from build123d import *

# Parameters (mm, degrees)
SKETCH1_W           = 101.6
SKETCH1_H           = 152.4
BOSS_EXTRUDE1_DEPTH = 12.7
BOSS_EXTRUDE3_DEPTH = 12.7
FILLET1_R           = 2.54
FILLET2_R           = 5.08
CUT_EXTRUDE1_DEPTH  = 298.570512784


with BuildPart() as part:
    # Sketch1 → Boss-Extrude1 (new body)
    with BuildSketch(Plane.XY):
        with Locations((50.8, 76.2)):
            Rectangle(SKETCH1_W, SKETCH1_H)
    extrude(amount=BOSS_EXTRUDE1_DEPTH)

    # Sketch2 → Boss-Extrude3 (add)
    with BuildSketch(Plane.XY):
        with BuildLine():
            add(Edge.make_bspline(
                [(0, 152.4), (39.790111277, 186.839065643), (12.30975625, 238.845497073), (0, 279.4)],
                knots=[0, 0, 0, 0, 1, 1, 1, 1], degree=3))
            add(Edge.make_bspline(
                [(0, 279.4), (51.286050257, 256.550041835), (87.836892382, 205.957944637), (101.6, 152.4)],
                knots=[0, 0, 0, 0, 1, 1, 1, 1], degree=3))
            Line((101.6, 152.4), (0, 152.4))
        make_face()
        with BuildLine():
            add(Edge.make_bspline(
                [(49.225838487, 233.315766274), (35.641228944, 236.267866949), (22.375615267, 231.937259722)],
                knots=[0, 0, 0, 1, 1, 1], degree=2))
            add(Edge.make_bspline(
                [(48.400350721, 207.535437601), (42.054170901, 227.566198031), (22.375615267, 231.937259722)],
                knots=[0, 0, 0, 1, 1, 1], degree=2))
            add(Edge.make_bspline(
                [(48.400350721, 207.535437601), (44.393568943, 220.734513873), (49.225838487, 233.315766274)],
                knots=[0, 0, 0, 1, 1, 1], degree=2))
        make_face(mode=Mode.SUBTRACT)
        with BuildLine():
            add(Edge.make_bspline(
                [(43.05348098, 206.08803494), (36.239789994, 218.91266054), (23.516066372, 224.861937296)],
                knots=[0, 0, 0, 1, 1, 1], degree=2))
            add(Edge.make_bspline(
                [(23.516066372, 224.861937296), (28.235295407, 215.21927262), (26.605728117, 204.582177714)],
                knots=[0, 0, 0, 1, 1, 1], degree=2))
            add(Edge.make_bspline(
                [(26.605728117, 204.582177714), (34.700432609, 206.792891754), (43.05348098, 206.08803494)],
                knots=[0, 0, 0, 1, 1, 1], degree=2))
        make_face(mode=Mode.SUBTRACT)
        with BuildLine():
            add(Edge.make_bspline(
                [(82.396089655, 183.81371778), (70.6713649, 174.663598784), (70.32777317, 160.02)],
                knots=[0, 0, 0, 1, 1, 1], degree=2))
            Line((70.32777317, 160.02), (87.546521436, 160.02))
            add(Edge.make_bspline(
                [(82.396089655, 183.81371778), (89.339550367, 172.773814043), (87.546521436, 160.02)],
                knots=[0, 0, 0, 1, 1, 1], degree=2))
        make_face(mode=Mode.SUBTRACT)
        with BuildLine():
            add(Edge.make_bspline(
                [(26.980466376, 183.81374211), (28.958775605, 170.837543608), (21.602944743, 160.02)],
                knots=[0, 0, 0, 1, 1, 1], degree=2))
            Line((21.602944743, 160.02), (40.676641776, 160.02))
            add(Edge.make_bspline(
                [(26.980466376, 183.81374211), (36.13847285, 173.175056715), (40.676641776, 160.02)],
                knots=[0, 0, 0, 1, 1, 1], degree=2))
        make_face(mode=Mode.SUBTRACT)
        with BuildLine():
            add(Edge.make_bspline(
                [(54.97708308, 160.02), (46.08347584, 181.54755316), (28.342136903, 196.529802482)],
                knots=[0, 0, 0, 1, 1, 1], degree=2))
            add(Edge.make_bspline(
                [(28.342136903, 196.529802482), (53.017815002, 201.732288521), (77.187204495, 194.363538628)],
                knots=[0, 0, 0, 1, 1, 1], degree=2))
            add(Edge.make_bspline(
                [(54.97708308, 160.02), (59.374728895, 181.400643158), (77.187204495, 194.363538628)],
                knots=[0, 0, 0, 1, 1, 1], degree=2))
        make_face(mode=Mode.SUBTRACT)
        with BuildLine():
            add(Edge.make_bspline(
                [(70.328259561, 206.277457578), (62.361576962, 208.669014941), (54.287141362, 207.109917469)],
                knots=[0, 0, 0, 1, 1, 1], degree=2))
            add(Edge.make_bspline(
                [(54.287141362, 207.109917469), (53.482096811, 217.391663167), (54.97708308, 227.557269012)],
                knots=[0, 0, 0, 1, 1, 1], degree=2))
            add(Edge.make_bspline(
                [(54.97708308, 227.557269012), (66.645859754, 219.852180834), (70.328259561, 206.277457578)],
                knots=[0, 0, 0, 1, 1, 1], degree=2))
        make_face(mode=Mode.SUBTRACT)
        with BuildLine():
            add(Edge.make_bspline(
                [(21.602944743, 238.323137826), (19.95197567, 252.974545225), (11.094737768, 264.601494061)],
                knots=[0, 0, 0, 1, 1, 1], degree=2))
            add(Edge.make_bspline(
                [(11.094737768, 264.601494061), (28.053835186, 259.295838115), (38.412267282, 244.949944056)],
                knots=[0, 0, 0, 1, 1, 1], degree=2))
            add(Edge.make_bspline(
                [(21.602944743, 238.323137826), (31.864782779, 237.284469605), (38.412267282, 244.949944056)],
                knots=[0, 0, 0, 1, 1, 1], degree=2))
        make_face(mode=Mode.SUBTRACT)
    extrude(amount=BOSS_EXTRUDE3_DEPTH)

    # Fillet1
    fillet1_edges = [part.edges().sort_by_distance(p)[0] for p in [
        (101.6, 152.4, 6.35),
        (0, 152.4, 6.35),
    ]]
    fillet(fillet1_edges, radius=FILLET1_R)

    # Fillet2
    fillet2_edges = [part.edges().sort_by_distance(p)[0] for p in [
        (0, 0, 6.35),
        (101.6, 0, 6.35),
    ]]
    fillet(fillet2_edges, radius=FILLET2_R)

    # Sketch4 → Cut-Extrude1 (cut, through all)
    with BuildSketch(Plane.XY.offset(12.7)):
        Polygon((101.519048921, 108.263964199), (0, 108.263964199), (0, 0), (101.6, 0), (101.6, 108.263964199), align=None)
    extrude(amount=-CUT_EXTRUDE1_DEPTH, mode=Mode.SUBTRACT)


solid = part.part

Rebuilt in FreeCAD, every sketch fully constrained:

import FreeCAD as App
import Part
import Sketcher
from FreeCAD import Vector
Q = App.Units.Quantity


def edges_at(feature, points):
    """Names of the edges that pass closest to the given points."""
    edges = feature.Shape.Edges
    near = lambda p: min(range(len(edges)), key=lambda i: edges[i].distToShape(Part.Vertex(*p))[0])
    return sorted({f"Edge{near(p) + 1}" for p in points})

doc = App.newDocument("Part")
body = doc.addObject("PartDesign::Body", "Body")

# Sketch on XY plane
sketch1 = body.newObject("Sketcher::SketchObject", "Sketch")
sketch1.AttachmentSupport = (doc.getObject("XY_Plane"), [""])
sketch1.MapMode = "FlatFace"
sketch1.addGeometry(Part.LineSegment(Vector(0, 152.4, 0), Vector(0, 0, 0)), False)
sketch1.addGeometry(Part.LineSegment(Vector(0, 0, 0), Vector(101.6, 0, 0)), False)
sketch1.addGeometry(Part.LineSegment(Vector(101.6, 0, 0), Vector(101.6, 152.4, 0)), False)
sketch1.addGeometry(Part.LineSegment(Vector(101.6, 152.4, 0), Vector(0, 152.4, 0)), False)
sketch1.addConstraint(Sketcher.Constraint("Coincident", 0, 2, 1, 1))
sketch1.addConstraint(Sketcher.Constraint("Coincident", 1, 2, 2, 1))
sketch1.addConstraint(Sketcher.Constraint("Coincident", 2, 2, 3, 1))
sketch1.addConstraint(Sketcher.Constraint("Coincident", 3, 2, 0, 1))
sketch1.addConstraint(Sketcher.Constraint("Vertical", 0))
sketch1.addConstraint(Sketcher.Constraint("Horizontal", 1))
sketch1.addConstraint(Sketcher.Constraint("Vertical", 2))
sketch1.addConstraint(Sketcher.Constraint("Horizontal", 3))
sketch1.addConstraint(Sketcher.Constraint("Coincident", 0, 2, -1, 1))
sketch1.addConstraint(Sketcher.Constraint("DistanceX", 1, 1, 1, 2, Q("4 in")))
sketch1.addConstraint(Sketcher.Constraint("DistanceY", 0, 2, 0, 1, Q("6 in")))
pad1 = body.newObject("PartDesign::Pad", "Pad")
pad1.Profile = sketch1
pad1.Length = Q("0.5 in")

# Sketch on XY plane
sketch2 = body.newObject("Sketcher::SketchObject", "Sketch001")
sketch2.AttachmentSupport = (doc.getObject("XY_Plane"), [""])
sketch2.MapMode = "FlatFace"
sketch2.addGeometry(Part.BSplineCurve([Vector(0, 152.4, 0), Vector(39.790111, 186.839066, 0), Vector(12.309756, 238.845497, 0), Vector(0, 279.4, 0)], [4, 4], [0, 1], False, 3, [1, 1, 1, 1], False), False)
sketch2.addGeometry(Part.LineSegment(Vector(0, 152.4, 0), Vector(101.6, 152.4, 0)), False)
sketch2.addGeometry(Part.BSplineCurve([Vector(0, 279.4, 0), Vector(51.28605, 256.550042, 0), Vector(87.836892, 205.957945, 0), Vector(101.6, 152.4, 0)], [4, 4], [0, 1], False, 3, [1, 1, 1, 1], False), False)
sketch2.addGeometry(Part.BSplineCurve([Vector(82.39609, 183.813718, 0), Vector(89.33955, 172.773814, 0), Vector(87.546521, 160.02, 0)], [3, 3], [0, 1], False, 2, [1, 1, 1], False), False)
sketch2.addGeometry(Part.LineSegment(Vector(87.546521, 160.02, 0), Vector(70.327773, 160.02, 0)), False)
sketch2.addGeometry(Part.BSplineCurve([Vector(82.39609, 183.813718, 0), Vector(70.671365, 174.663599, 0), Vector(70.327773, 160.02, 0)], [3, 3], [0, 1], False, 2, [1, 1, 1], False), False)
sketch2.addGeometry(Part.BSplineCurve([Vector(54.977083, 160.02, 0), Vector(46.083476, 181.547553, 0), Vector(28.342137, 196.529802, 0)], [3, 3], [0, 1], False, 2, [1, 1, 1], False), False)
sketch2.addGeometry(Part.BSplineCurve([Vector(28.342137, 196.529802, 0), Vector(53.017815, 201.732289, 0), Vector(77.187204, 194.363539, 0)], [3, 3], [0, 1], False, 2, [1, 1, 1], False), False)
sketch2.addGeometry(Part.BSplineCurve([Vector(54.977083, 160.02, 0), Vector(59.374729, 181.400643, 0), Vector(77.187204, 194.363539, 0)], [3, 3], [0, 1], False, 2, [1, 1, 1], False), False)
sketch2.addGeometry(Part.BSplineCurve([Vector(26.980466, 183.813742, 0), Vector(36.138473, 173.175057, 0), Vector(40.676642, 160.02, 0)], [3, 3], [0, 1], False, 2, [1, 1, 1], False), False)
sketch2.addGeometry(Part.LineSegment(Vector(40.676642, 160.02, 0), Vector(21.602945, 160.02, 0)), False)
sketch2.addGeometry(Part.BSplineCurve([Vector(26.980466, 183.813742, 0), Vector(28.958776, 170.837544, 0), Vector(21.602945, 160.02, 0)], [3, 3], [0, 1], False, 2, [1, 1, 1], False), False)
sketch2.addGeometry(Part.BSplineCurve([Vector(70.32826, 206.277458, 0), Vector(62.361577, 208.669015, 0), Vector(54.287141, 207.109917, 0)], [3, 3], [0, 1], False, 2, [1, 1, 1], False), False)
sketch2.addGeometry(Part.BSplineCurve([Vector(54.287141, 207.109917, 0), Vector(53.482097, 217.391663, 0), Vector(54.977083, 227.557269, 0)], [3, 3], [0, 1], False, 2, [1, 1, 1], False), False)
sketch2.addGeometry(Part.BSplineCurve([Vector(54.977083, 227.557269, 0), Vector(66.64586, 219.852181, 0), Vector(70.32826, 206.277458, 0)], [3, 3], [0, 1], False, 2, [1, 1, 1], False), False)
sketch2.addGeometry(Part.BSplineCurve([Vector(26.605728, 204.582178, 0), Vector(34.700433, 206.792892, 0), Vector(43.053481, 206.088035, 0)], [3, 3], [0, 1], False, 2, [1, 1, 1], False), False)
sketch2.addGeometry(Part.BSplineCurve([Vector(23.516066, 224.861937, 0), Vector(28.235295, 215.219273, 0), Vector(26.605728, 204.582178, 0)], [3, 3], [0, 1], False, 2, [1, 1, 1], False), False)
sketch2.addGeometry(Part.BSplineCurve([Vector(43.053481, 206.088035, 0), Vector(36.23979, 218.912661, 0), Vector(23.516066, 224.861937, 0)], [3, 3], [0, 1], False, 2, [1, 1, 1], False), False)
sketch2.addGeometry(Part.BSplineCurve([Vector(48.400351, 207.535438, 0), Vector(44.393569, 220.734514, 0), Vector(49.225838, 233.315766, 0)], [3, 3], [0, 1], False, 2, [1, 1, 1], False), False)
sketch2.addGeometry(Part.BSplineCurve([Vector(48.400351, 207.535438, 0), Vector(42.054171, 227.566198, 0), Vector(22.375615, 231.93726, 0)], [3, 3], [0, 1], False, 2, [1, 1, 1], False), False)
sketch2.addGeometry(Part.BSplineCurve([Vector(49.225838, 233.315766, 0), Vector(35.641229, 236.267867, 0), Vector(22.375615, 231.93726, 0)], [3, 3], [0, 1], False, 2, [1, 1, 1], False), False)
sketch2.addGeometry(Part.BSplineCurve([Vector(21.602945, 238.323138, 0), Vector(19.951976, 252.974545, 0), Vector(11.094738, 264.601494, 0)], [3, 3], [0, 1], False, 2, [1, 1, 1], False), False)
sketch2.addGeometry(Part.BSplineCurve([Vector(11.094738, 264.601494, 0), Vector(28.053835, 259.295838, 0), Vector(38.412267, 244.949944, 0)], [3, 3], [0, 1], False, 2, [1, 1, 1], False), False)
sketch2.addGeometry(Part.BSplineCurve([Vector(21.602945, 238.323138, 0), Vector(31.864783, 237.28447, 0), Vector(38.412267, 244.949944, 0)], [3, 3], [0, 1], False, 2, [1, 1, 1], False), False)
sketch2.addConstraint(Sketcher.Constraint("Block", 0))
sketch2.addConstraint(Sketcher.Constraint("Block", 2))
sketch2.addConstraint(Sketcher.Constraint("Block", 3))
sketch2.addConstraint(Sketcher.Constraint("Block", 5))
sketch2.addConstraint(Sketcher.Constraint("Block", 6))
sketch2.addConstraint(Sketcher.Constraint("Block", 7))
sketch2.addConstraint(Sketcher.Constraint("Block", 8))
sketch2.addConstraint(Sketcher.Constraint("Block", 9))
sketch2.addConstraint(Sketcher.Constraint("Block", 11))
sketch2.addConstraint(Sketcher.Constraint("Block", 12))
sketch2.addConstraint(Sketcher.Constraint("Block", 13))
sketch2.addConstraint(Sketcher.Constraint("Block", 14))
sketch2.addConstraint(Sketcher.Constraint("Block", 15))
sketch2.addConstraint(Sketcher.Constraint("Block", 16))
sketch2.addConstraint(Sketcher.Constraint("Block", 17))
sketch2.addConstraint(Sketcher.Constraint("Block", 18))
sketch2.addConstraint(Sketcher.Constraint("Block", 19))
sketch2.addConstraint(Sketcher.Constraint("Block", 20))
sketch2.addConstraint(Sketcher.Constraint("Block", 21))
sketch2.addConstraint(Sketcher.Constraint("Block", 22))
sketch2.addConstraint(Sketcher.Constraint("Block", 23))
sketch2.addConstraint(Sketcher.Constraint("Coincident", 0, 1, 1, 1))
sketch2.addConstraint(Sketcher.Constraint("Coincident", 1, 2, 2, 2))
sketch2.addConstraint(Sketcher.Constraint("Coincident", 3, 2, 4, 1))
sketch2.addConstraint(Sketcher.Constraint("Coincident", 4, 2, 5, 2))
sketch2.addConstraint(Sketcher.Constraint("Coincident", 9, 2, 10, 1))
sketch2.addConstraint(Sketcher.Constraint("Coincident", 10, 2, 11, 2))
pad2 = body.newObject("PartDesign::Pad", "Pad001")
pad2.Profile = sketch2
pad2.Length = Q("0.5 in")
doc.recompute()

fillet = body.newObject("PartDesign::Fillet", "Fillet")
fillet.Base = (pad2, edges_at(pad2, [(101.6, 152.4, 6.35), (0, 152.4, 6.35)]))
fillet.Radius = Q("0.1 in")
doc.recompute()

fillet2 = body.newObject("PartDesign::Fillet", "Fillet001")
fillet2.Base = (fillet, edges_at(fillet, [(0, 0, 6.35), (101.6, 0, 6.35)]))
fillet2.Radius = Q("0.2 in")

# Sketch on XY plane
sketch3 = body.newObject("Sketcher::SketchObject", "Sketch002")
sketch3.AttachmentSupport = (doc.getObject("XY_Plane"), [""])
sketch3.MapMode = "FlatFace"
sketch3.AttachmentOffset = App.Placement(Vector(0, 0, 0.5 * 25.4), App.Rotation())
sketch3.addGeometry(Part.LineSegment(Vector(0, 108.263964, 0), Vector(0, 0, 0)), False)
sketch3.addGeometry(Part.LineSegment(Vector(0, 0, 0), Vector(101.6, 0, 0)), False)
sketch3.addGeometry(Part.LineSegment(Vector(101.6, 0, 0), Vector(101.6, 108.263964, 0)), False)
sketch3.addGeometry(Part.LineSegment(Vector(101.6, 108.263964, 0), Vector(0, 108.263964, 0)), False)
sketch3.addConstraint(Sketcher.Constraint("Coincident", 0, 2, 1, 1))
sketch3.addConstraint(Sketcher.Constraint("Coincident", 1, 2, 2, 1))
sketch3.addConstraint(Sketcher.Constraint("Coincident", 2, 2, 3, 1))
sketch3.addConstraint(Sketcher.Constraint("Coincident", 3, 2, 0, 1))
sketch3.addConstraint(Sketcher.Constraint("Vertical", 0))
sketch3.addConstraint(Sketcher.Constraint("Horizontal", 1))
sketch3.addConstraint(Sketcher.Constraint("Vertical", 2))
sketch3.addConstraint(Sketcher.Constraint("Horizontal", 3))
sketch3.addConstraint(Sketcher.Constraint("Coincident", 0, 2, -1, 1))
sketch3.addConstraint(Sketcher.Constraint("DistanceX", 1, 1, 1, 2, Q("4 in")))
sketch3.addConstraint(Sketcher.Constraint("DistanceY", 0, 2, 0, 1, Q("108.263964 mm")))
pocket1 = body.newObject("PartDesign::Pocket", "Pocket")
pocket1.Profile = sketch3
pocket1.Type = "ThroughAll"

doc.recompute()
